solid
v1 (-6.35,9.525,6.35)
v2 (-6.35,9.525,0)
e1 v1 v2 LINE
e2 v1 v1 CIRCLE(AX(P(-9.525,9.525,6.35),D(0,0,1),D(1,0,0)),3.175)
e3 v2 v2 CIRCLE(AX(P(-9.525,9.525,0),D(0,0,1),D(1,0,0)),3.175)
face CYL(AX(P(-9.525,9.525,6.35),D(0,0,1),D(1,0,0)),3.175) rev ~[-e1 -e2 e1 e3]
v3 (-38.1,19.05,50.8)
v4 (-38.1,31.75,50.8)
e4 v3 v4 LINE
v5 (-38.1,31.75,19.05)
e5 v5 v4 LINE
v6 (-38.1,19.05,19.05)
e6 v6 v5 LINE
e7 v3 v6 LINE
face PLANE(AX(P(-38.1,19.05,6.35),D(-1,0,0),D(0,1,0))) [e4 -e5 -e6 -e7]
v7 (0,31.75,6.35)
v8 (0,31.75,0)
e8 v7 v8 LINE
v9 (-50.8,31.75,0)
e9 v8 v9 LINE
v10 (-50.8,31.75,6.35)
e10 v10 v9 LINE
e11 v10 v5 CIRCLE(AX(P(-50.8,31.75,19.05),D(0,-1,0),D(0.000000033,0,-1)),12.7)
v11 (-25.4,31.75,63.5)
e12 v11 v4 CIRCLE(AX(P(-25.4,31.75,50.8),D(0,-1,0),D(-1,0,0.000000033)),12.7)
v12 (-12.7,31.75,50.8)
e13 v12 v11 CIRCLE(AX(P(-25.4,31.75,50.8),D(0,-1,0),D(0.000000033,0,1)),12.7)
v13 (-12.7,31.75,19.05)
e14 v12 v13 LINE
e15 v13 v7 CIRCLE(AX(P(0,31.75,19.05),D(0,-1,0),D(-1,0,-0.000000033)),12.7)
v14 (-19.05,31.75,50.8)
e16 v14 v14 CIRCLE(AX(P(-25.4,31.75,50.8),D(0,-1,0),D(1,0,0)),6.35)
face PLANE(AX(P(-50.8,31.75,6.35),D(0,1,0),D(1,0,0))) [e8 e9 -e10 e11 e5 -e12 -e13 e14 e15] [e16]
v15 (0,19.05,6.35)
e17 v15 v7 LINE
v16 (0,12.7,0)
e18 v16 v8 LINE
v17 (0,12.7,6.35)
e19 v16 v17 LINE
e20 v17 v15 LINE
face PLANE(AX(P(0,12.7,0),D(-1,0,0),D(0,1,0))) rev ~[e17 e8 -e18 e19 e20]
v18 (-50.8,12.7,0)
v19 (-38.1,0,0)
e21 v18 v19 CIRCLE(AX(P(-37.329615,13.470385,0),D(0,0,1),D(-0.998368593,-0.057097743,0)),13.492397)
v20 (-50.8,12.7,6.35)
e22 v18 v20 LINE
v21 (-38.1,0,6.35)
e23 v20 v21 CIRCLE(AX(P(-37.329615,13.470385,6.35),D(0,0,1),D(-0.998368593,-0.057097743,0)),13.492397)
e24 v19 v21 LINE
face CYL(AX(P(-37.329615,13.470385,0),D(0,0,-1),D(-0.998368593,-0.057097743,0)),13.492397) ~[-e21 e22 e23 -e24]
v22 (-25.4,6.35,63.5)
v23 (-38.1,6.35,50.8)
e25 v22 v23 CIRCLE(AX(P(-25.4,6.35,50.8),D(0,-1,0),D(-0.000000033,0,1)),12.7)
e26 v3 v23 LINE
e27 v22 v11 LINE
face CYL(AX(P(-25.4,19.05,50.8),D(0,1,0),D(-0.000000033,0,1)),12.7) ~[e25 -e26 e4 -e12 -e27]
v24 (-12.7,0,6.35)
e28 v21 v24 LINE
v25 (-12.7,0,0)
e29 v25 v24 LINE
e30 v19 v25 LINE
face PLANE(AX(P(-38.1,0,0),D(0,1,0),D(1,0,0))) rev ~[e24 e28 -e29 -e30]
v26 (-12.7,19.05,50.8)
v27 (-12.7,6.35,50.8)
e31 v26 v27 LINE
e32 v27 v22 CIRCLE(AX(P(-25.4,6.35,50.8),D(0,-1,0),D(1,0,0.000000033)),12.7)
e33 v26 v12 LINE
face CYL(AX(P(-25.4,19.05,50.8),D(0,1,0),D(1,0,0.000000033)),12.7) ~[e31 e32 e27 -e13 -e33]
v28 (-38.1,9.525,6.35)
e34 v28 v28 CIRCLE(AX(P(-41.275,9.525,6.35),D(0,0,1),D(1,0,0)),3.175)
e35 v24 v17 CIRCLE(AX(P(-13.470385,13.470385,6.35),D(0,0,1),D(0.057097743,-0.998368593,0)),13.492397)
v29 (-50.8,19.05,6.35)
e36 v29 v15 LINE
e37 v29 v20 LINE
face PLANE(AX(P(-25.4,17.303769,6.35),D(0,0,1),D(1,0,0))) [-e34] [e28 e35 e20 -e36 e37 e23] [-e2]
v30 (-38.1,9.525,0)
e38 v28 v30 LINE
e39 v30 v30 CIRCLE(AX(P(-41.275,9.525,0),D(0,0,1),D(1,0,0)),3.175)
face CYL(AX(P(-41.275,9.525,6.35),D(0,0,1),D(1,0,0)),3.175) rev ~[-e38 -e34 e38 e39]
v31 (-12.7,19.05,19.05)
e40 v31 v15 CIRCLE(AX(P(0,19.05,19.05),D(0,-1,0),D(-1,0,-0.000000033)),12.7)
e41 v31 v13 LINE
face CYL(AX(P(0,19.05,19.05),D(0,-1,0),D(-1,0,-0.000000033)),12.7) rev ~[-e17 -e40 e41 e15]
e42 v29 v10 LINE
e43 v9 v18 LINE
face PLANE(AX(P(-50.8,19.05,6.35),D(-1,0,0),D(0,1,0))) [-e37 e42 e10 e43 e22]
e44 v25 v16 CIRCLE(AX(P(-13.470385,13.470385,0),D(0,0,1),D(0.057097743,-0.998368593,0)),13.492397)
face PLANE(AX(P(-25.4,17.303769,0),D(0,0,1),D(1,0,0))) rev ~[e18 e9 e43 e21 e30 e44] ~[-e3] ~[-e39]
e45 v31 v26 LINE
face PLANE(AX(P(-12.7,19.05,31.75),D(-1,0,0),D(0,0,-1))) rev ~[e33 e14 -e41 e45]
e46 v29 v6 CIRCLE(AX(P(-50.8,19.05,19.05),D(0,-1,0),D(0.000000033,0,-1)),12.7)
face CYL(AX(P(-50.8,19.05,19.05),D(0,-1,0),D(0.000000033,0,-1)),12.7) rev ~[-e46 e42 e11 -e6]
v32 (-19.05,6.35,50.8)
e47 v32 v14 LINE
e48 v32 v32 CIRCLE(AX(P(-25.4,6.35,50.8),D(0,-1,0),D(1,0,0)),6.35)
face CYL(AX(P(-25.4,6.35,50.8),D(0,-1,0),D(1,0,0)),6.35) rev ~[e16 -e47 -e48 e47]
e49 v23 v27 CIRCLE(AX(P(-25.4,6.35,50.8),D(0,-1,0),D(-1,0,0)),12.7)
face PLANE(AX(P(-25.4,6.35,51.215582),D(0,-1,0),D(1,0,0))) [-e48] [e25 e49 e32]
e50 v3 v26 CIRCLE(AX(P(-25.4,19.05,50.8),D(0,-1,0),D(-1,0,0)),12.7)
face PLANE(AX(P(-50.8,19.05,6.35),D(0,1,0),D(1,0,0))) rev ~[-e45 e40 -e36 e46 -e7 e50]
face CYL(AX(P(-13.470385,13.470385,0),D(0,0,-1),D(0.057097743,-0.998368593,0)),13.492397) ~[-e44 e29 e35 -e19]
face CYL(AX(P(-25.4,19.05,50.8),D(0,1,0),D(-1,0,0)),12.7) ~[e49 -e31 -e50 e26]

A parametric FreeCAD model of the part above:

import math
import FreeCAD as App
import Part
import Sketcher
Q = App.Units.Quantity

doc = App.newDocument("Part")
body = doc.addObject("PartDesign::Body", "Body")

sketch1 = body.newObject("Sketcher::SketchObject", "Sketch")
sketch1.AttachmentSupport = (doc.getObject("XY_Plane"), [""])
sketch1.MapMode = "FlatFace"
sketch1.addGeometry([
    Part.LineSegment(App.Vector(0, 32, 0), App.Vector(-51, 32, 0)),
    Part.LineSegment(App.Vector(-51, 32, 0), App.Vector(-51, 13, 0)),
    Part.ArcOfCircle(Part.Circle(App.Vector(-37, 13, 0), App.Vector(0, 0, 1), 13), math.radians(-177), math.radians(-93)),
    Part.LineSegment(App.Vector(-38, 0, 0), App.Vector(-13, 0, 0)),
    Part.ArcOfCircle(Part.Circle(App.Vector(-13, 13, 0), App.Vector(0, 0, 1), 13), math.radians(-87), math.radians(-3)),
    Part.LineSegment(App.Vector(0, 13, 0), App.Vector(0, 32, 0)),
], False)
sketch1.addConstraint([
    Sketcher.Constraint("Coincident", 0, 2, 1, 1),
    Sketcher.Constraint("Coincident", 1, 2, 2, 1),
    Sketcher.Constraint("Coincident", 2, 2, 3, 1),
    Sketcher.Constraint("Coincident", 3, 2, 4, 1),
    Sketcher.Constraint("Coincident", 4, 2, 5, 1),
    Sketcher.Constraint("Coincident", 5, 2, 0, 1),
    Sketcher.Constraint("Horizontal", 0),
    Sketcher.Constraint("Vertical", 1),
    Sketcher.Constraint("Horizontal", 3),
    Sketcher.Constraint("Vertical", 5),
    Sketcher.Constraint("Equal", 2, 4),
    Sketcher.Constraint("PointOnObject", 2, 2, -1),
    Sketcher.Constraint("PointOnObject", 4, 2, -2),
    Sketcher.Constraint("Horizontal", 2, 3, 4, 3),
    Sketcher.Constraint("Horizontal", 1, 2, 4, 2),
    Sketcher.Constraint("DistanceX", 0, 2, 0, 1, Q("2 in")),
    Sketcher.Constraint("DistanceX", 3, 1, 3, 2, Q("1 in")),
    Sketcher.Constraint("DistanceY", 1, 2, 1, 1, Q("0.75 in")),
    Sketcher.Constraint("DistanceY", -1, 1, 1, 2, Q("0.5 in")),
    Sketcher.Constraint("Radius", 2, Q("13.492397 mm")),
])
pad1 = body.newObject("PartDesign::Pad", "Pad")
pad1.Profile = sketch1
pad1.Length = Q("0.25 in")

sketch2 = body.newObject("Sketcher::SketchObject", "Sketch001")
sketch2.AttachmentSupport = (doc.getObject("XY_Plane"), [""])
sketch2.MapMode = "FlatFace"
sketch2.AttachmentOffset = App.Placement(App.Vector(0, 0, 0.25 * 25.4), App.Rotation())
sketch2.addGeometry([
    Part.LineSegment(App.Vector(-38, 32, 0), App.Vector(-38, 19, 0)),
    Part.LineSegment(App.Vector(-38, 19, 0), App.Vector(-13, 19, 0)),
    Part.LineSegment(App.Vector(-13, 19, 0), App.Vector(-13, 32, 0)),
    Part.LineSegment(App.Vector(-13, 32, 0), App.Vector(-38, 32, 0)),
], False)
sketch2.addConstraint([
    Sketcher.Constraint("Coincident", 0, 2, 1, 1),
    Sketcher.Constraint("Coincident", 1, 2, 2, 1),
    Sketcher.Constraint("Coincident", 2, 2, 3, 1),
    Sketcher.Constraint("Coincident", 3, 2, 0, 1),
    Sketcher.Constraint("Vertical", 0),
    Sketcher.Constraint("Horizontal", 1),
    Sketcher.Constraint("Vertical", 2),
    Sketcher.Constraint("Horizontal", 3),
    Sketcher.Constraint("DistanceX", 1, 1, 1, 2, Q("1 in")),
    Sketcher.Constraint("DistanceY", 0, 2, 0, 1, Q("0.5 in")),
    Sketcher.Constraint("DistanceX", 0, 2, -1, 1, Q("1.5 in")),
    Sketcher.Constraint("DistanceY", -1, 1, 0, 2, Q("0.75 in")),
])
pad2 = body.newObject("PartDesign::Pad", "Pad001")
pad2.Profile = sketch2
pad2.Length = Q("2.25 in")

sketch3 = body.newObject("Sketcher::SketchObject", "Sketch002")
sketch3.AttachmentSupport = (doc.getObject("XZ_Plane"), [""])
sketch3.MapMode = "FlatFace"
sketch3.AttachmentOffset = App.Placement(App.Vector(0, 0, -0.75 * 25.4), App.Rotation())
sketch3.addGeometry([
    Part.ArcOfCircle(Part.Circle(App.Vector(-25, 51, 0), App.Vector(0, 0, 1), 13), math.radians(0), math.radians(90)),
    Part.LineSegment(App.Vector(-13, 51, 0), App.Vector(-13, 64, 0)),
    Part.LineSegment(App.Vector(-13, 64, 0), App.Vector(-25, 64, 0)),
    Part.ArcOfCircle(Part.Circle(App.Vector(-25, 51, 0), App.Vector(0, 0, 1), 13), math.radians(90), math.radians(180)),
    Part.LineSegment(App.Vector(-25, 64, 0), App.Vector(-38, 64, 0)),
    Part.LineSegment(App.Vector(-38, 64, 0), App.Vector(-38, 51, 0)),
], False)
sketch3.addConstraint([
    Sketcher.Constraint("Tangent", 0, 1, 1, 1),
    Sketcher.Constraint("Coincident", 1, 2, 2, 1),
    Sketcher.Constraint("Tangent", 2, 2, 0, 2),
    Sketcher.Constraint("Tangent", 3, 1, 4, 1),
    Sketcher.Constraint("Coincident", 4, 2, 5, 1),
    Sketcher.Constraint("Tangent", 5, 2, 3, 2),
    Sketcher.Constraint("Vertical", 1),
    Sketcher.Constraint("Horizontal", 2),
    Sketcher.Constraint("Horizontal", 4),
    Sketcher.Constraint("Vertical", 5),
    Sketcher.Constraint("Coincident", 3, 3, 0, 3),
    Sketcher.Constraint("Equal", 0, 3),
    Sketcher.Constraint("Radius", 0, Q("0.5 in")),
    Sketcher.Constraint("DistanceX", 0, 3, -1, 1, Q("1 in")),
    Sketcher.Constraint("DistanceY", -1, 1, 0, 3, Q("2 in")),
])
pocket1 = body.newObject("PartDesign::Pocket", "Pocket")
pocket1.Profile = sketch3
pocket1.Type = "ThroughAll"

sketch4 = body.newObject("Sketcher::SketchObject", "Sketch003")
sketch4.AttachmentSupport = (doc.getObject("XZ_Plane"), [""])
sketch4.MapMode = "FlatFace"
sketch4.AttachmentOffset = App.Placement(App.Vector(0, 0, -0.75 * 25.4), App.Rotation())
sketch4.addGeometry([
    Part.ArcOfCircle(Part.Circle(App.Vector(-25, 51, 0), App.Vector(0, 0, 1), 13), math.radians(180), math.radians(360)),
    Part.ArcOfCircle(Part.Circle(App.Vector(-25, 51, 0), App.Vector(0, 0, 1), 13), math.radians(0), math.radians(90)),
    Part.ArcOfCircle(Part.Circle(App.Vector(-25, 51, 0), App.Vector(0, 0, 1), 13), math.radians(90), math.radians(180)),
], False)
sketch4.addConstraint([
    Sketcher.Constraint("Tangent", 0, 2, 1, 1),
    Sketcher.Constraint("Tangent", 1, 2, 2, 1),
    Sketcher.Constraint("Tangent", 2, 2, 0, 1),
    Sketcher.Constraint("Horizontal", 2, 3, 0, 2),
    Sketcher.Constraint("Horizontal", 0, 2, 2, 2),
    Sketcher.Constraint("Vertical", 2, 3, 1, 2),
    Sketcher.Constraint("Radius", 0, Q("0.5 in")),
    Sketcher.Constraint("DistanceX", 0, 3, -1, 1, Q("1 in")),
    Sketcher.Constraint("DistanceY", -1, 1, 0, 3, Q("2 in")),
])
pad3 = body.newObject("PartDesign::Pad", "Pad002")
pad3.Profile = sketch4
pad3.Length = Q("0.5 in")

sketch5 = body.newObject("Sketcher::SketchObject", "Sketch004")
sketch5.AttachmentSupport = (doc.getObject("XZ_Plane"), [""])
sketch5.MapMode = "FlatFace"
sketch5.AttachmentOffset = App.Placement(App.Vector(0, 0, -0.25 * 25.4), App.Rotation())
sketch5.addGeometry(Part.Circle(App.Vector(-25, 51, 0), App.Vector(0, 0, 1), 6), False)
sketch5.addConstraint([
    Sketcher.Constraint("Diameter", 0, Q("0.5 in")),
    Sketcher.Constraint("DistanceX", 0, 3, -1, 1, Q("1 in")),
    Sketcher.Constraint("DistanceY", -1, 1, 0, 3, Q("2 in")),
])
pocket2 = body.newObject("PartDesign::Pocket", "Pocket001")
pocket2.Profile = sketch5
pocket2.Type = "ThroughAll"

sketch6 = body.newObject("Sketcher::SketchObject", "Sketch005")
sketch6.AttachmentSupport = (doc.getObject("XY_Plane"), [""])
sketch6.MapMode = "FlatFace"
sketch6.AttachmentOffset = App.Placement(App.Vector(0, 0, 0.25 * 25.4), App.Rotation())
sketch6.addGeometry([
    Part.LineSegment(App.Vector(-51, 32, 0), App.Vector(-51, 19, 0)),
    Part.LineSegment(App.Vector(-51, 19, 0), App.Vector(-38, 19, 0)),
    Part.LineSegment(App.Vector(-38, 19, 0), App.Vector(-38, 32, 0)),
    Part.LineSegment(App.Vector(-38, 32, 0), App.Vector(-51, 32, 0)),
    Part.LineSegment(App.Vector(-13, 32, 0), App.Vector(-13, 19, 0)),
    Part.LineSegment(App.Vector(-13, 19, 0), App.Vector(0, 19, 0)),
    Part.LineSegment(App.Vector(0, 19, 0), App.Vector(0, 32, 0)),
    Part.LineSegment(App.Vector(0, 32, 0), App.Vector(-13, 32, 0)),
], False)
sketch6.addConstraint([
    Sketcher.Constraint("Coincident", 0, 2, 1, 1),
    Sketcher.Constraint("Coincident", 1, 2, 2, 1),
    Sketcher.Constraint("Coincident", 2, 2, 3, 1),
    Sketcher.Constraint("Coincident", 3, 2, 0, 1),
    Sketcher.Constraint("Coincident", 4, 2, 5, 1),
    Sketcher.Constraint("Coincident", 5, 2, 6, 1),
    Sketcher.Constraint("Coincident", 6, 2, 7, 1),
    Sketcher.Constraint("Coincident", 7, 2, 4, 1),
    Sketcher.Constraint("Vertical", 0),
    Sketcher.Constraint("Horizontal", 1),
    Sketcher.Constraint("Vertical", 2),
    Sketcher.Constraint("Horizontal", 3),
    Sketcher.Constraint("Vertical", 4),
    Sketcher.Constraint("Horizontal", 5),
    Sketcher.Constraint("Vertical", 6),
    Sketcher.Constraint("Horizontal", 7),
    Sketcher.Constraint("PointOnObject", 5, 2, -2),
    Sketcher.Constraint("Horizontal", 1, 2, 4, 2),
    Sketcher.Constraint("Horizontal", 3, 2, 6, 2),
    Sketcher.Constraint("Equal", 3, 5),
    Sketcher.Constraint("Equal", 7, 0),
    Sketcher.Constraint("DistanceX", 1, 1, 1, 2, Q("0.5 in")),
    Sketcher.Constraint("DistanceX", 0, 2, -1, 1, Q("2 in")),
    Sketcher.Constraint("DistanceY", -1, 1, 0, 2, Q("0.75 in")),
])
pad4 = body.newObject("PartDesign::Pad", "Pad003")
pad4.Profile = sketch6
pad4.Length = Q("1 in")

sketch7 = body.newObject("Sketcher::SketchObject", "Sketch006")
sketch7.AttachmentSupport = (doc.getObject("XZ_Plane"), [""])
sketch7.MapMode = "FlatFace"
sketch7.AttachmentOffset = App.Placement(App.Vector(0, 0, -0.75 * 25.4), App.Rotation())
sketch7.addGeometry([
    Part.LineSegment(App.Vector(-38, 19, 0), App.Vector(-38, 32, 0)),
    Part.LineSegment(App.Vector(-38, 32, 0), App.Vector(-51, 32, 0)),
    Part.LineSegment(App.Vector(-51, 32, 0), App.Vector(-51, 6, 0)),
    Part.ArcOfCircle(Part.Circle(App.Vector(-51, 19, 0), App.Vector(0, 0, 1), 13), math.radians(-90), math.radians(0)),
    Part.LineSegment(App.Vector(0, 32, 0), App.Vector(-13, 32, 0)),
    Part.LineSegment(App.Vector(-13, 32, 0), App.Vector(-13, 19, 0)),
    Part.ArcOfCircle(Part.Circle(App.Vector(0, 19, 0), App.Vector(0, 0, 1), 13), math.radians(-180), math.radians(-90)),
    Part.LineSegment(App.Vector(0, 6, 0), App.Vector(0, 32, 0)),
], False)
sketch7.addConstraint([
    Sketcher.Constraint("Coincident", 0, 2, 1, 1),
    Sketcher.Constraint("Coincident", 1, 2, 2, 1),
    Sketcher.Constraint("Coincident", 2, 2, 3, 1),
    Sketcher.Constraint("Tangent", 3, 2, 0, 1),
    Sketcher.Constraint("Coincident", 4, 2, 5, 1),
    Sketcher.Constraint("Tangent", 5, 2, 6, 1),
    Sketcher.Constraint("Coincident", 6, 2, 7, 1),
    Sketcher.Constraint("Coincident", 7, 2, 4, 1),
    Sketcher.Constraint("Vertical", 0),
    Sketcher.Constraint("Horizontal", 1),
    Sketcher.Constraint("Vertical", 2),
    Sketcher.Constraint("Horizontal", 4),
    Sketcher.Constraint("Vertical", 5),
    Sketcher.Constraint("Vertical", 7),
    Sketcher.Constraint("Equal", 3, 6),
    Sketcher.Constraint("PointOnObject", 6, 3, -2),
    Sketcher.Constraint("PointOnObject", 6, 2, -2),
    Sketcher.Constraint("Horizontal", 3, 3, 6, 3),
    Sketcher.Constraint("Horizontal", 1, 2, 4, 2),
    Sketcher.Constraint("Vertical", 3, 3, 1, 2),
    Sketcher.Constraint("Equal", 4, 0),
    Sketcher.Constraint("Radius", 3, Q("0.5 in")),
    Sketcher.Constraint("DistanceX", 3, 3, -1, 1, Q("2 in")),
    Sketcher.Constraint("DistanceY", -1, 1, 3, 3, Q("0.75 in")),
])
pocket3 = body.newObject("PartDesign::Pocket", "Pocket002")
pocket3.Profile = sketch7
pocket3.Type = "ThroughAll"

sketch8 = body.newObject("Sketcher::SketchObject", "Sketch007")
sketch8.AttachmentSupport = (doc.getObject("XY_Plane"), [""])
sketch8.MapMode = "FlatFace"
sketch8.AttachmentOffset = App.Placement(App.Vector(0, 0, 0.25 * 25.4), App.Rotation())
sketch8.addGeometry([
    Part.Circle(App.Vector(-41.3, 9.5, 0), App.Vector(0, 0, 1), 3.2),
    Part.Circle(App.Vector(-9.5, 9.5, 0), App.Vector(0, 0, 1), 3.2),
], False)
sketch8.addConstraint([
    Sketcher.Constraint("Equal", 0, 1),
    Sketcher.Constraint("Horizontal", 0, 3, 1, 3),
    Sketcher.Constraint("Diameter", 0, Q("0.25 in")),
    Sketcher.Constraint("DistanceX", 0, 3, 1, 3, Q("1.25 in")),
    Sketcher.Constraint("DistanceX", 0, 3, -1, 1, Q("1.625 in")),
    Sketcher.Constraint("DistanceY", -1, 1, 0, 3, Q("0.375 in")),
])
pocket4 = body.newObject("PartDesign::Pocket", "Pocket003")
pocket4.Profile = sketch8
pocket4.Type = "ThroughAll"

doc.recompute()
